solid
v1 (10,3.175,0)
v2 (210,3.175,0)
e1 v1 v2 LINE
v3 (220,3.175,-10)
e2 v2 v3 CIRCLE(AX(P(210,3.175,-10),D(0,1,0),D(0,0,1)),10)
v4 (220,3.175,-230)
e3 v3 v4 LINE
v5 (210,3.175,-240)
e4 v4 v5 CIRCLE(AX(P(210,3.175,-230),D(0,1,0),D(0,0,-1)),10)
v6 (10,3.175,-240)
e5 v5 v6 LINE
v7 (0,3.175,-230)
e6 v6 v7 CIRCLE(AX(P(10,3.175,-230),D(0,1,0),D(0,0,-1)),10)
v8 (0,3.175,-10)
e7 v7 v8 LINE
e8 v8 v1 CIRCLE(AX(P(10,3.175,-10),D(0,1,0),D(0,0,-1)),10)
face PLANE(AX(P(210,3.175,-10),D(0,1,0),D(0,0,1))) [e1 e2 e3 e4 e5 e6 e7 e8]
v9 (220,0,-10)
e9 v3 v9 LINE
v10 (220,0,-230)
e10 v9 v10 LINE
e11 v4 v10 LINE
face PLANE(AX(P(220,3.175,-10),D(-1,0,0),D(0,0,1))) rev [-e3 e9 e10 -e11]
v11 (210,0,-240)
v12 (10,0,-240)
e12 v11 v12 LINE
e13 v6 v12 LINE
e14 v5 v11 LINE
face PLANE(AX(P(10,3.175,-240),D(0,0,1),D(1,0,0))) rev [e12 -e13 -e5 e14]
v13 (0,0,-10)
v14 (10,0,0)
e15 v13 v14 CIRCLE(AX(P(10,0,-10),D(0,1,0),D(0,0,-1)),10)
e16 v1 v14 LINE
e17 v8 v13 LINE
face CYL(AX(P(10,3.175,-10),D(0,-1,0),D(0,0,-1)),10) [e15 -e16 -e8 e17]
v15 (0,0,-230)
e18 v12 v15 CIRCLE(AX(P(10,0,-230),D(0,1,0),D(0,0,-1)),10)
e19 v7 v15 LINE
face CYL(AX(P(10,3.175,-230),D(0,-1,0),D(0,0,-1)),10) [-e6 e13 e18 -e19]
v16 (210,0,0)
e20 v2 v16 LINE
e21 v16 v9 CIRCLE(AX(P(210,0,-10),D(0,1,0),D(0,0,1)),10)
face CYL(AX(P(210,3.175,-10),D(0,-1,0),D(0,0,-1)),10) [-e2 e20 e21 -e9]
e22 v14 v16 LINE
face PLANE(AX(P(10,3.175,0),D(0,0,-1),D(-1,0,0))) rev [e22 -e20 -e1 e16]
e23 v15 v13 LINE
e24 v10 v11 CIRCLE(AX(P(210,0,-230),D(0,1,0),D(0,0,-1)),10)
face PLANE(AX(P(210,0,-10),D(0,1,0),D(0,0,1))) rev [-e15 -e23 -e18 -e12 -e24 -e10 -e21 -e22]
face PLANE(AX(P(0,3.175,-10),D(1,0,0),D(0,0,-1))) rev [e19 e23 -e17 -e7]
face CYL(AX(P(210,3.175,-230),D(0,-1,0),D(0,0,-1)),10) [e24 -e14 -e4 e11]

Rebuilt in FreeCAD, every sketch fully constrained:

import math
import FreeCAD as App
import Part
import Sketcher
Q = App.Units.Quantity

doc = App.newDocument("Part")
params = doc.addObject("Spreadsheet::Sheet", "Params")
for row, (alias, value) in enumerate([
    ("sketch1_radius", "10 mm"),
    ("sketch1_width", "200 mm"),
    ("sketch1_height", "220 mm"),
    ("pad1_length", "3.175 mm"),
], start=1):
    params.set(f"A{row}", alias)
    params.set(f"B{row}", "=" + value)
    params.setAlias(f"B{row}", alias)

body = doc.addObject("PartDesign::Body", "Body")

# Sketch on XZ plane
sketch1 = doc.addObject("Sketcher::SketchObject", "Sketch")
body.addObject(sketch1)
sketch1.AttachmentSupport = (doc.XZ_Plane, [""])
sketch1.MapMode = "FlatFace"
sketch1.addGeometry([
    Part.LineSegment(App.Vector(10, 0, 0), App.Vector(210, 0, 0)),  # 0
    Part.ArcOfCircle(Part.Circle(App.Vector(210, -10, 0), App.Vector(0, 0, 1), 10), math.radians(0), math.radians(90)),  # 1
    Part.LineSegment(App.Vector(220, -10, 0), App.Vector(220, -230, 0)),  # 2
    Part.ArcOfCircle(Part.Circle(App.Vector(210, -230, 0), App.Vector(0, 0, 1), 10), math.radians(-90), math.radians(0)),  # 3
    Part.LineSegment(App.Vector(210, -240, 0), App.Vector(10, -240, 0)),  # 4
    Part.ArcOfCircle(Part.Circle(App.Vector(10, -230, 0), App.Vector(0, 0, 1), 10), math.radians(180), math.radians(270)),  # 5
    Part.LineSegment(App.Vector(0, -230, 0), App.Vector(0, -10, 0)),  # 6
    Part.ArcOfCircle(Part.Circle(App.Vector(10, -10, 0), App.Vector(0, 0, 1), 10), math.radians(90), math.radians(180)),  # 7
], False)
sketch1.addConstraint([
    Sketcher.Constraint("Tangent", 0, 2, 1, 2),
    Sketcher.Constraint("Tangent", 1, 1, 2, 1),
    Sketcher.Constraint("Tangent", 2, 2, 3, 2),
    Sketcher.Constraint("Tangent", 3, 1, 4, 1),
    Sketcher.Constraint("Tangent", 4, 2, 5, 2),
    Sketcher.Constraint("Tangent", 5, 1, 6, 1),
    Sketcher.Constraint("Tangent", 6, 2, 7, 2),
    Sketcher.Constraint("Tangent", 7, 1, 0, 1),
    Sketcher.Constraint("Horizontal", 0),
    Sketcher.Constraint("Vertical", 2),
    Sketcher.Constraint("Horizontal", 4),
    Sketcher.Constraint("Vertical", 6),
    Sketcher.Constraint("Equal", 1, 3),
    Sketcher.Constraint("Equal", 3, 5),
    Sketcher.Constraint("Equal", 5, 7),
    Sketcher.Constraint("PointOnObject", 0, 2, -1),
    Sketcher.Constraint("PointOnObject", 5, 1, -2),
    Sketcher.Constraint("Radius", 1, Q("10 mm")),
    Sketcher.Constraint("DistanceX", 0, 1, 0, 2, Q("200 mm")),
    Sketcher.Constraint("DistanceY", 2, 2, 2, 1, Q("220 mm")),
])
sketch1.setExpression("Constraints[17]", "Params.sketch1_radius")
sketch1.setExpression("Constraints[18]", "Params.sketch1_width")
sketch1.setExpression("Constraints[19]", "Params.sketch1_height")
pad1 = doc.addObject("PartDesign::Pad", "Pad")
body.addObject(pad1)
pad1.Profile = sketch1
pad1.setExpression("Length", "Params.pad1_length")
pad1.Reversed = True

doc.recompute()
